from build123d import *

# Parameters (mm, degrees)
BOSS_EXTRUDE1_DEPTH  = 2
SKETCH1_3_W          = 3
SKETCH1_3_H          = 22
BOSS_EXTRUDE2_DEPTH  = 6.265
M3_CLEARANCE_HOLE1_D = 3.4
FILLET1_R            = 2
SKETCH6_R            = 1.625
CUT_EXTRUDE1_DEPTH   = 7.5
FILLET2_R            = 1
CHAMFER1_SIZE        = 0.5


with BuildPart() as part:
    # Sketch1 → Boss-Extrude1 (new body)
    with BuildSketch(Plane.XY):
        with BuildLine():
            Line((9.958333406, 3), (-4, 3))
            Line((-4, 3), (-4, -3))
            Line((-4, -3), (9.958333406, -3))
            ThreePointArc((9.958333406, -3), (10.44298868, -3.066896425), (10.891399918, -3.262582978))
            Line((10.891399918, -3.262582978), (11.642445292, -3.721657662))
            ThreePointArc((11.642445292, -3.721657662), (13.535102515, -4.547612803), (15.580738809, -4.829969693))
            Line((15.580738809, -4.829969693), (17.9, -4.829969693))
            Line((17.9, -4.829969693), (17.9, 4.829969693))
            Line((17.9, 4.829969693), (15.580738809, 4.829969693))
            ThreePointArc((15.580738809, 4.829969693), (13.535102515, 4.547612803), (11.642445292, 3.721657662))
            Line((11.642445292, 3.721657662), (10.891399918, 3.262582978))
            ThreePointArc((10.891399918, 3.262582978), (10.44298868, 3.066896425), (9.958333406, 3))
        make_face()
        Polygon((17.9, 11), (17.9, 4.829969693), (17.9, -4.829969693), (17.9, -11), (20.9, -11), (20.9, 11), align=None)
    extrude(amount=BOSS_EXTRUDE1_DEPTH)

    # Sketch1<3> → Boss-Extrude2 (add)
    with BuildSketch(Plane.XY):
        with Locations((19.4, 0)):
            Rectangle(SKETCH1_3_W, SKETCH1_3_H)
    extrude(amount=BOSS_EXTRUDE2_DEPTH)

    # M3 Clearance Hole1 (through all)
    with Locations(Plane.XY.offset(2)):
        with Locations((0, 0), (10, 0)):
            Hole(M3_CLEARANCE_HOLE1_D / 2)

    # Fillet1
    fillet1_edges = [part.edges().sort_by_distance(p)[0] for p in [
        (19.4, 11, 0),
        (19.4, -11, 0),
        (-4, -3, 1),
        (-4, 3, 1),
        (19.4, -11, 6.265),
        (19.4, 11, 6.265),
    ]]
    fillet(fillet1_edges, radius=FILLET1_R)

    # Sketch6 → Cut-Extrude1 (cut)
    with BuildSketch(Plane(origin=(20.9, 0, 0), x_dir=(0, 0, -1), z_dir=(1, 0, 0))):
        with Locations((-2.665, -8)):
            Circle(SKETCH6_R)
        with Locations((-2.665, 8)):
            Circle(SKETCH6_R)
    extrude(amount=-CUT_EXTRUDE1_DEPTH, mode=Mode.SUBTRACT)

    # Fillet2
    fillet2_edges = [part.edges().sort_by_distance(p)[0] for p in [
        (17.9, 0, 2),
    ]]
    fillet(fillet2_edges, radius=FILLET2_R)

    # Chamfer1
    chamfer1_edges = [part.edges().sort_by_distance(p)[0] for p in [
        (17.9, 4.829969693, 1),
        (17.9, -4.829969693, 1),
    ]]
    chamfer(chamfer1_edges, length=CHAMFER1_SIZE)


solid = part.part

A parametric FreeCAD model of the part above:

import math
import FreeCAD as App
import Part
import Sketcher
from FreeCAD import Vector
Q = App.Units.Quantity


def edges_at(feature, points):
    """Names of the edges that pass closest to the given points."""
    edges = feature.Shape.Edges
    near = lambda p: min(range(len(edges)), key=lambda i: edges[i].distToShape(Part.Vertex(*p))[0])
    return sorted({f"Edge{near(p) + 1}" for p in points})

doc = App.newDocument("Part")
body = doc.addObject("PartDesign::Body", "Body")

sketch1 = body.newObject("Sketcher::SketchObject", "Sketch")
sketch1.AttachmentSupport = (doc.getObject("XY_Plane"), [""])
sketch1.MapMode = "FlatFace"
sketch1.addGeometry([
    Part.LineSegment(Vector(10, 3, 0), Vector(-4, 3, 0)),
    Part.LineSegment(Vector(-4, 3, 0), Vector(-4, -3, 0)),
    Part.LineSegment(Vector(-4, -3, 0), Vector(10, -3, 0)),
    Part.ArcOfCircle(Part.Circle(Vector(10, -4.8, 0), Vector(0, 0, 1), 1.8), math.radians(59), math.radians(90)),
    Part.LineSegment(Vector(10.9, -3.3, 0), Vector(11.6, -3.7, 0)),
    Part.ArcOfCircle(Part.Circle(Vector(15.6, 2.7, 0), Vector(0, 0, 1), 7.6), math.radians(-121), math.radians(-90)),
    Part.LineSegment(Vector(15.6, -4.8, 0), Vector(17.9, -4.8, 0)),
    Part.LineSegment(Vector(17.9, -4.8, 0), Vector(17.9, -11, 0)),
    Part.LineSegment(Vector(17.9, -11, 0), Vector(20.9, -11, 0)),
    Part.LineSegment(Vector(20.9, -11, 0), Vector(20.9, 11, 0)),
    Part.LineSegment(Vector(20.9, 11, 0), Vector(17.9, 11, 0)),
    Part.LineSegment(Vector(17.9, 11, 0), Vector(17.9, 4.8, 0)),
    Part.LineSegment(Vector(17.9, 4.8, 0), Vector(15.6, 4.8, 0)),
    Part.ArcOfCircle(Part.Circle(Vector(15.6, -2.7, 0), Vector(0, 0, 1), 7.6), math.radians(90), math.radians(121)),
    Part.LineSegment(Vector(11.6, 3.7, 0), Vector(10.9, 3.3, 0)),
    Part.ArcOfCircle(Part.Circle(Vector(10, 4.8, 0), Vector(0, 0, 1), 1.8), math.radians(-90), math.radians(-59)),
], False)
sketch1.addConstraint([
    Sketcher.Constraint("Coincident", 0, 2, 1, 1),
    Sketcher.Constraint("Coincident", 1, 2, 2, 1),
    Sketcher.Constraint("Tangent", 2, 2, 3, 2),
    Sketcher.Constraint("Tangent", 3, 1, 4, 1),
    Sketcher.Constraint("Tangent", 4, 2, 5, 1),
    Sketcher.Constraint("Tangent", 5, 2, 6, 1),
    Sketcher.Constraint("Coincident", 6, 2, 7, 1),
    Sketcher.Constraint("Coincident", 7, 2, 8, 1),
    Sketcher.Constraint("Coincident", 8, 2, 9, 1),
    Sketcher.Constraint("Coincident", 9, 2, 10, 1),
    Sketcher.Constraint("Coincident", 10, 2, 11, 1),
    Sketcher.Constraint("Coincident", 11, 2, 12, 1),
    Sketcher.Constraint("Tangent", 12, 2, 13, 1),
    Sketcher.Constraint("Tangent", 13, 2, 14, 1),
    Sketcher.Constraint("Tangent", 14, 2, 15, 2),
    Sketcher.Constraint("Tangent", 15, 1, 0, 1),
    Sketcher.Constraint("Horizontal", 0),
    Sketcher.Constraint("Vertical", 1),
    Sketcher.Constraint("Horizontal", 2),
    Sketcher.Constraint("Horizontal", 6),
    Sketcher.Constraint("Vertical", 7),
    Sketcher.Constraint("Horizontal", 8),
    Sketcher.Constraint("Vertical", 9),
    Sketcher.Constraint("Horizontal", 10),
    Sketcher.Constraint("Vertical", 11),
    Sketcher.Constraint("Horizontal", 12),
    Sketcher.Constraint("Equal", 5, 13),
    Sketcher.Constraint("Equal", 3, 15),
    Sketcher.Constraint("Symmetric", 5, 3, 13, 3, -1),
    Sketcher.Constraint("Symmetric", 3, 3, 15, 3, -1),
    Sketcher.Constraint("Symmetric", 7, 2, 10, 2, -1),
    Sketcher.Constraint("DistanceX", 8, 1, 8, 2, Q("3 mm")),
    Sketcher.Constraint("DistanceY", 1, 2, 1, 1, Q("6 mm")),
    Sketcher.Constraint("DistanceY", 9, 1, 9, 2, Q("22 mm")),
    Sketcher.Constraint("DistanceX", 0, 2, -1, 1, Q("4 mm")),
    Sketcher.Constraint("DistanceX", -1, 1, 6, 2, Q("17.9 mm")),
    Sketcher.Constraint("Radius", 3, Q("1.789078 mm")),
    Sketcher.Constraint("Radius", 5, Q("7.551353 mm")),
    Sketcher.Constraint("DistanceX", 6, 1, 6, 2, Q("2.319261 mm")),
    Sketcher.Constraint("DistanceY", 7, 2, 7, 1, Q("6.17003 mm")),
    Sketcher.Constraint("DistanceX", -1, 1, 3, 1, Q("10.8914 mm")),
])
pad1 = body.newObject("PartDesign::Pad", "Pad")
pad1.Profile = sketch1
pad1.Length = 2

sketch2 = body.newObject("Sketcher::SketchObject", "Sketch001")
sketch2.AttachmentSupport = (doc.getObject("XY_Plane"), [""])
sketch2.MapMode = "FlatFace"
sketch2.addGeometry([
    Part.LineSegment(Vector(17.9, 11, 0), Vector(17.9, -11, 0)),
    Part.LineSegment(Vector(17.9, -11, 0), Vector(20.9, -11, 0)),
    Part.LineSegment(Vector(20.9, -11, 0), Vector(20.9, 11, 0)),
    Part.LineSegment(Vector(20.9, 11, 0), Vector(17.9, 11, 0)),
], False)
sketch2.addConstraint([
    Sketcher.Constraint("Coincident", 0, 2, 1, 1),
    Sketcher.Constraint("Coincident", 1, 2, 2, 1),
    Sketcher.Constraint("Coincident", 2, 2, 3, 1),
    Sketcher.Constraint("Coincident", 3, 2, 0, 1),
    Sketcher.Constraint("Vertical", 0),
    Sketcher.Constraint("Horizontal", 1),
    Sketcher.Constraint("Vertical", 2),
    Sketcher.Constraint("Horizontal", 3),
    Sketcher.Constraint("DistanceX", 1, 1, 1, 2, Q("3 mm")),
    Sketcher.Constraint("DistanceY", 0, 2, 0, 1, Q("22 mm")),
    Sketcher.Constraint("DistanceY", 0, 2, -1, 1, Q("11 mm")),
    Sketcher.Constraint("DistanceX", -1, 1, 0, 2, Q("17.9 mm")),
])
pad2 = body.newObject("PartDesign::Pad", "Pad001")
pad2.Profile = sketch2
pad2.Length = 6.265

sketch3 = body.newObject("Sketcher::SketchObject", "Sketch002")
sketch3.AttachmentSupport = (doc.getObject("XY_Plane"), [""])
sketch3.MapMode = "FlatFace"
sketch3.AttachmentOffset = App.Placement(Vector(0, 0, 2), App.Rotation())
sketch3.addGeometry([
    Part.Circle(Vector(0, 0, 0), Vector(0, 0, 1), 1.7),
    Part.Circle(Vector(10, 0, 0), Vector(0, 0, 1), 1.7),
], False)
sketch3.addConstraint([
    Sketcher.Constraint("Coincident", 0, 3, -1, 1),
    Sketcher.Constraint("Equal", 0, 1),
    Sketcher.Constraint("PointOnObject", 1, 3, -1),
    Sketcher.Constraint("Diameter", 0, Q("3.4 mm")),
    Sketcher.Constraint("DistanceX", -1, 1, 1, 3, Q("10 mm")),
])
doc.recompute()
hole = body.newObject("PartDesign::Hole", "Hole")
hole.Profile = sketch3
hole.ThreadType = "None"
hole.Diameter = 3.4
hole.DepthType = "ThroughAll"
doc.recompute()

fillet = body.newObject("PartDesign::Fillet", "Fillet")
fillet.Base = (hole, edges_at(hole, [
    (19.4, 11, 0),
    (19.4, -11, 0),
    (-4, -3, 1),
    (-4, 3, 1),
    (19.4, -11, 6.265),
    (19.4, 11, 6.265),
]))
fillet.Radius = 2

sketch4 = body.newObject("Sketcher::SketchObject", "Sketch003")
sketch4.AttachmentSupport = (doc.getObject("YZ_Plane"), [""])
sketch4.MapMode = "FlatFace"
sketch4.AttachmentOffset = App.Placement(Vector(0, 0, 20.9), App.Rotation())
sketch4.addGeometry([
    Part.Circle(Vector(-8, 2.7, 0), Vector(0, 0, 1), 1.6),
    Part.Circle(Vector(8, 2.7, 0), Vector(0, 0, 1), 1.6),
], False)
sketch4.addConstraint([
    Sketcher.Constraint("Equal", 0, 1),
    Sketcher.Constraint("Symmetric", 0, 3, 1, 3, -2),
    Sketcher.Constraint("Diameter", 0, Q("3.25 mm")),
    Sketcher.Constraint("DistanceX", 0, 3, -1, 1, Q("8 mm")),
    Sketcher.Constraint("DistanceY", -1, 1, 0, 3, Q("2.665 mm")),
])
pocket1 = body.newObject("PartDesign::Pocket", "Pocket")
pocket1.Profile = sketch4
pocket1.Length = 7.5
doc.recompute()

fillet2 = body.newObject("PartDesign::Fillet", "Fillet001")
fillet2.Base = (pocket1, edges_at(pocket1, [(17.9, 0, 2)]))
fillet2.Radius = 1
doc.recompute()

chamfer = body.newObject("PartDesign::Chamfer", "Chamfer")
chamfer.Base = (fillet2, edges_at(fillet2, [(17.9, 4.83, 1.5), (17.9, -4.83, 1.5)]))
chamfer.Size = 0.5

doc.recompute()
